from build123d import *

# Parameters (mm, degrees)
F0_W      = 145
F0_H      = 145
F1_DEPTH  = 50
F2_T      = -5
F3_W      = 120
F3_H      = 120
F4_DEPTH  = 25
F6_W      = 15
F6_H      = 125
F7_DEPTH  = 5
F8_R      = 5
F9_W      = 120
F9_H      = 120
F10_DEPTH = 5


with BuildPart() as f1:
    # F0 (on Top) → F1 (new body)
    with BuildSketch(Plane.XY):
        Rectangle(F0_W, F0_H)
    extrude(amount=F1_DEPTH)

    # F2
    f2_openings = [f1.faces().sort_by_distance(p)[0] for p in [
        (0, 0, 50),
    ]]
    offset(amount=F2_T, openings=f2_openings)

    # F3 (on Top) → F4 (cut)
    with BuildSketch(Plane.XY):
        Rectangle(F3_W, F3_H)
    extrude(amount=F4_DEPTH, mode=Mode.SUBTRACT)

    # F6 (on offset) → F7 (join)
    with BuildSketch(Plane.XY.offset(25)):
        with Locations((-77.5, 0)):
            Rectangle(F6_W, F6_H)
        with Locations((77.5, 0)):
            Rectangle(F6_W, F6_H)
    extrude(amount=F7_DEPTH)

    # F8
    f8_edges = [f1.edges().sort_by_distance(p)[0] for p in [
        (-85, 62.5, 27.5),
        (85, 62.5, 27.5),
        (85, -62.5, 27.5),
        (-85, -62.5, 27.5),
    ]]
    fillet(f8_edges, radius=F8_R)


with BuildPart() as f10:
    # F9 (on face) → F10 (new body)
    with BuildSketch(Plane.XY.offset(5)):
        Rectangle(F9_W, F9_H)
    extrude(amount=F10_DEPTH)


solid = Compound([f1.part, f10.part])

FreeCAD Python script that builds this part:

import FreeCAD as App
import Part
import Sketcher
Q = App.Units.Quantity


def edges_at(feature, points):
    """Names of the edges that pass closest to the given points."""
    edges = feature.Shape.Edges
    near = lambda p: min(range(len(edges)), key=lambda i: edges[i].distToShape(Part.Vertex(*p))[0])
    return sorted({f"Edge{near(p) + 1}" for p in points})


def faces_at(feature, points):
    """Names of the faces that lie closest to the given points."""
    faces = feature.Shape.Faces
    near = lambda p: min(range(len(faces)), key=lambda i: faces[i].distToShape(Part.Vertex(*p))[0])
    return sorted({f"Face{near(p) + 1}" for p in points})


def add_polygon(sketch, points):
    """Adds a closed chain of lines whose ends are joined by coincident constraints."""
    first, n = sketch.GeometryCount, len(points)
    for a, b in zip(points, points[1:] + points[:1]):
        sketch.addGeometry(Part.LineSegment(App.Vector(*a, 0), App.Vector(*b, 0)), False)
    for i in range(n):
        sketch.addConstraint(Sketcher.Constraint("Coincident", first + i, 2, first + (i + 1) % n, 1))

doc = App.newDocument("Part")
body = doc.addObject("PartDesign::Body", "Body")

# Sketch on XY plane
sketch1 = doc.addObject("Sketcher::SketchObject", "Sketch")
body.addObject(sketch1)
sketch1.AttachmentSupport = (doc.XY_Plane, [""])
sketch1.MapMode = "FlatFace"
add_polygon(sketch1, [(-72, 72), (-72, -72), (72, -72), (72, 72)])  # lines 0-3
sketch1.addConstraint(Sketcher.Constraint("Vertical", 0))
sketch1.addConstraint(Sketcher.Constraint("Horizontal", 1))
sketch1.addConstraint(Sketcher.Constraint("Vertical", 2))
sketch1.addConstraint(Sketcher.Constraint("Horizontal", 3))
sketch1.addConstraint(Sketcher.Constraint("Symmetric", 0, 2, 2, 2, -1, 1))
sketch1.addConstraint(Sketcher.Constraint("Equal", 3, 0))
sketch1.addConstraint(Sketcher.Constraint("DistanceX", 1, 1, 1, 2, Q("145 mm")))
pad1 = doc.addObject("PartDesign::Pad", "Pad")
body.addObject(pad1)
pad1.Profile = sketch1
pad1.Length = 50
doc.recompute()

thickness = doc.addObject("PartDesign::Thickness", "Thickness")
body.addObject(thickness)
thickness.Base = (pad1, faces_at(pad1, [(0, 0, 50)]))
thickness.Value = 5
thickness.Reversed = True
thickness.Join = "Arc"

# Sketch on XY plane
sketch2 = doc.addObject("Sketcher::SketchObject", "Sketch001")
body.addObject(sketch2)
sketch2.AttachmentSupport = (doc.XY_Plane, [""])
sketch2.MapMode = "FlatFace"
add_polygon(sketch2, [(-60, 60), (-60, -60), (60, -60), (60, 60)])  # lines 0-3
sketch2.addConstraint(Sketcher.Constraint("Vertical", 0))
sketch2.addConstraint(Sketcher.Constraint("Horizontal", 1))
sketch2.addConstraint(Sketcher.Constraint("Vertical", 2))
sketch2.addConstraint(Sketcher.Constraint("Horizontal", 3))
sketch2.addConstraint(Sketcher.Constraint("Symmetric", 0, 2, 2, 2, -1, 1))
sketch2.addConstraint(Sketcher.Constraint("Equal", 3, 0))
sketch2.addConstraint(Sketcher.Constraint("DistanceX", 1, 1, 1, 2, Q("120 mm")))
pocket1 = doc.addObject("PartDesign::Pocket", "Pocket")
body.addObject(pocket1)
pocket1.Profile = sketch2
pocket1.Length = 25
pocket1.Reversed = True

# Sketch on XY plane
sketch3 = doc.addObject("Sketcher::SketchObject", "Sketch002")
body.addObject(sketch3)
sketch3.AttachmentSupport = (doc.XY_Plane, [""])
sketch3.MapMode = "FlatFace"
sketch3.AttachmentOffset = App.Placement(App.Vector(0, 0, 25), App.Rotation())
add_polygon(sketch3, [(-85, 62), (-85, -62), (-70, -62), (-70, 62)])  # lines 0-3
add_polygon(sketch3, [(70, 62), (70, -62), (85, -62), (85, 62)])  # lines 4-7
sketch3.addConstraint(Sketcher.Constraint("Vertical", 0))
sketch3.addConstraint(Sketcher.Constraint("Horizontal", 1))
sketch3.addConstraint(Sketcher.Constraint("Vertical", 2))
sketch3.addConstraint(Sketcher.Constraint("Horizontal", 3))
sketch3.addConstraint(Sketcher.Constraint("Vertical", 4))
sketch3.addConstraint(Sketcher.Constraint("Horizontal", 5))
sketch3.addConstraint(Sketcher.Constraint("Vertical", 6))
sketch3.addConstraint(Sketcher.Constraint("Horizontal", 7))
sketch3.addConstraint(Sketcher.Constraint("Symmetric", 2, 2, 4, 2, -1, 1))
sketch3.addConstraint(Sketcher.Constraint("Symmetric", 0, 2, 6, 2, -1, 1))
sketch3.addConstraint(Sketcher.Constraint("Horizontal", 1, 2, 4, 2))
sketch3.addConstraint(Sketcher.Constraint("DistanceX", 1, 1, 1, 2, Q("15 mm")))
sketch3.addConstraint(Sketcher.Constraint("DistanceY", 0, 2, 0, 1, Q("125 mm")))
sketch3.addConstraint(Sketcher.Constraint("DistanceX", 0, 2, -1, 1, Q("85 mm")))
pad2 = doc.addObject("PartDesign::Pad", "Pad001")
body.addObject(pad2)
pad2.Profile = sketch3
pad2.Length = 5
doc.recompute()

fillet = doc.addObject("PartDesign::Fillet", "Fillet")
body.addObject(fillet)
fillet.Base = (pad2, edges_at(pad2, [
    (-85, 62.5, 27.5),
    (85, 62.5, 27.5),
    (85, -62.5, 27.5),
    (-85, -62.5, 27.5),
]))
fillet.Radius = 5
body2 = doc.addObject("PartDesign::Body", "Body001")

# Sketch on XY plane
sketch4 = doc.addObject("Sketcher::SketchObject", "Sketch003")
body2.addObject(sketch4)
sketch4.AttachmentSupport = (doc.getObject("XY_Plane001"), [""])
sketch4.MapMode = "FlatFace"
sketch4.AttachmentOffset = App.Placement(App.Vector(0, 0, 5), App.Rotation())
add_polygon(sketch4, [(-60, 60), (-60, -60), (60, -60), (60, 60)])  # lines 0-3
sketch4.addConstraint(Sketcher.Constraint("Vertical", 0))
sketch4.addConstraint(Sketcher.Constraint("Horizontal", 1))
sketch4.addConstraint(Sketcher.Constraint("Vertical", 2))
sketch4.addConstraint(Sketcher.Constraint("Horizontal", 3))
sketch4.addConstraint(Sketcher.Constraint("Symmetric", 0, 2, 2, 2, -1, 1))
sketch4.addConstraint(Sketcher.Constraint("Equal", 3, 0))
sketch4.addConstraint(Sketcher.Constraint("DistanceX", 1, 1, 1, 2, Q("120 mm")))
pad3 = doc.addObject("PartDesign::Pad", "Pad002")
body2.addObject(pad3)
pad3.Profile = sketch4
pad3.Length = 5

doc.recompute()
